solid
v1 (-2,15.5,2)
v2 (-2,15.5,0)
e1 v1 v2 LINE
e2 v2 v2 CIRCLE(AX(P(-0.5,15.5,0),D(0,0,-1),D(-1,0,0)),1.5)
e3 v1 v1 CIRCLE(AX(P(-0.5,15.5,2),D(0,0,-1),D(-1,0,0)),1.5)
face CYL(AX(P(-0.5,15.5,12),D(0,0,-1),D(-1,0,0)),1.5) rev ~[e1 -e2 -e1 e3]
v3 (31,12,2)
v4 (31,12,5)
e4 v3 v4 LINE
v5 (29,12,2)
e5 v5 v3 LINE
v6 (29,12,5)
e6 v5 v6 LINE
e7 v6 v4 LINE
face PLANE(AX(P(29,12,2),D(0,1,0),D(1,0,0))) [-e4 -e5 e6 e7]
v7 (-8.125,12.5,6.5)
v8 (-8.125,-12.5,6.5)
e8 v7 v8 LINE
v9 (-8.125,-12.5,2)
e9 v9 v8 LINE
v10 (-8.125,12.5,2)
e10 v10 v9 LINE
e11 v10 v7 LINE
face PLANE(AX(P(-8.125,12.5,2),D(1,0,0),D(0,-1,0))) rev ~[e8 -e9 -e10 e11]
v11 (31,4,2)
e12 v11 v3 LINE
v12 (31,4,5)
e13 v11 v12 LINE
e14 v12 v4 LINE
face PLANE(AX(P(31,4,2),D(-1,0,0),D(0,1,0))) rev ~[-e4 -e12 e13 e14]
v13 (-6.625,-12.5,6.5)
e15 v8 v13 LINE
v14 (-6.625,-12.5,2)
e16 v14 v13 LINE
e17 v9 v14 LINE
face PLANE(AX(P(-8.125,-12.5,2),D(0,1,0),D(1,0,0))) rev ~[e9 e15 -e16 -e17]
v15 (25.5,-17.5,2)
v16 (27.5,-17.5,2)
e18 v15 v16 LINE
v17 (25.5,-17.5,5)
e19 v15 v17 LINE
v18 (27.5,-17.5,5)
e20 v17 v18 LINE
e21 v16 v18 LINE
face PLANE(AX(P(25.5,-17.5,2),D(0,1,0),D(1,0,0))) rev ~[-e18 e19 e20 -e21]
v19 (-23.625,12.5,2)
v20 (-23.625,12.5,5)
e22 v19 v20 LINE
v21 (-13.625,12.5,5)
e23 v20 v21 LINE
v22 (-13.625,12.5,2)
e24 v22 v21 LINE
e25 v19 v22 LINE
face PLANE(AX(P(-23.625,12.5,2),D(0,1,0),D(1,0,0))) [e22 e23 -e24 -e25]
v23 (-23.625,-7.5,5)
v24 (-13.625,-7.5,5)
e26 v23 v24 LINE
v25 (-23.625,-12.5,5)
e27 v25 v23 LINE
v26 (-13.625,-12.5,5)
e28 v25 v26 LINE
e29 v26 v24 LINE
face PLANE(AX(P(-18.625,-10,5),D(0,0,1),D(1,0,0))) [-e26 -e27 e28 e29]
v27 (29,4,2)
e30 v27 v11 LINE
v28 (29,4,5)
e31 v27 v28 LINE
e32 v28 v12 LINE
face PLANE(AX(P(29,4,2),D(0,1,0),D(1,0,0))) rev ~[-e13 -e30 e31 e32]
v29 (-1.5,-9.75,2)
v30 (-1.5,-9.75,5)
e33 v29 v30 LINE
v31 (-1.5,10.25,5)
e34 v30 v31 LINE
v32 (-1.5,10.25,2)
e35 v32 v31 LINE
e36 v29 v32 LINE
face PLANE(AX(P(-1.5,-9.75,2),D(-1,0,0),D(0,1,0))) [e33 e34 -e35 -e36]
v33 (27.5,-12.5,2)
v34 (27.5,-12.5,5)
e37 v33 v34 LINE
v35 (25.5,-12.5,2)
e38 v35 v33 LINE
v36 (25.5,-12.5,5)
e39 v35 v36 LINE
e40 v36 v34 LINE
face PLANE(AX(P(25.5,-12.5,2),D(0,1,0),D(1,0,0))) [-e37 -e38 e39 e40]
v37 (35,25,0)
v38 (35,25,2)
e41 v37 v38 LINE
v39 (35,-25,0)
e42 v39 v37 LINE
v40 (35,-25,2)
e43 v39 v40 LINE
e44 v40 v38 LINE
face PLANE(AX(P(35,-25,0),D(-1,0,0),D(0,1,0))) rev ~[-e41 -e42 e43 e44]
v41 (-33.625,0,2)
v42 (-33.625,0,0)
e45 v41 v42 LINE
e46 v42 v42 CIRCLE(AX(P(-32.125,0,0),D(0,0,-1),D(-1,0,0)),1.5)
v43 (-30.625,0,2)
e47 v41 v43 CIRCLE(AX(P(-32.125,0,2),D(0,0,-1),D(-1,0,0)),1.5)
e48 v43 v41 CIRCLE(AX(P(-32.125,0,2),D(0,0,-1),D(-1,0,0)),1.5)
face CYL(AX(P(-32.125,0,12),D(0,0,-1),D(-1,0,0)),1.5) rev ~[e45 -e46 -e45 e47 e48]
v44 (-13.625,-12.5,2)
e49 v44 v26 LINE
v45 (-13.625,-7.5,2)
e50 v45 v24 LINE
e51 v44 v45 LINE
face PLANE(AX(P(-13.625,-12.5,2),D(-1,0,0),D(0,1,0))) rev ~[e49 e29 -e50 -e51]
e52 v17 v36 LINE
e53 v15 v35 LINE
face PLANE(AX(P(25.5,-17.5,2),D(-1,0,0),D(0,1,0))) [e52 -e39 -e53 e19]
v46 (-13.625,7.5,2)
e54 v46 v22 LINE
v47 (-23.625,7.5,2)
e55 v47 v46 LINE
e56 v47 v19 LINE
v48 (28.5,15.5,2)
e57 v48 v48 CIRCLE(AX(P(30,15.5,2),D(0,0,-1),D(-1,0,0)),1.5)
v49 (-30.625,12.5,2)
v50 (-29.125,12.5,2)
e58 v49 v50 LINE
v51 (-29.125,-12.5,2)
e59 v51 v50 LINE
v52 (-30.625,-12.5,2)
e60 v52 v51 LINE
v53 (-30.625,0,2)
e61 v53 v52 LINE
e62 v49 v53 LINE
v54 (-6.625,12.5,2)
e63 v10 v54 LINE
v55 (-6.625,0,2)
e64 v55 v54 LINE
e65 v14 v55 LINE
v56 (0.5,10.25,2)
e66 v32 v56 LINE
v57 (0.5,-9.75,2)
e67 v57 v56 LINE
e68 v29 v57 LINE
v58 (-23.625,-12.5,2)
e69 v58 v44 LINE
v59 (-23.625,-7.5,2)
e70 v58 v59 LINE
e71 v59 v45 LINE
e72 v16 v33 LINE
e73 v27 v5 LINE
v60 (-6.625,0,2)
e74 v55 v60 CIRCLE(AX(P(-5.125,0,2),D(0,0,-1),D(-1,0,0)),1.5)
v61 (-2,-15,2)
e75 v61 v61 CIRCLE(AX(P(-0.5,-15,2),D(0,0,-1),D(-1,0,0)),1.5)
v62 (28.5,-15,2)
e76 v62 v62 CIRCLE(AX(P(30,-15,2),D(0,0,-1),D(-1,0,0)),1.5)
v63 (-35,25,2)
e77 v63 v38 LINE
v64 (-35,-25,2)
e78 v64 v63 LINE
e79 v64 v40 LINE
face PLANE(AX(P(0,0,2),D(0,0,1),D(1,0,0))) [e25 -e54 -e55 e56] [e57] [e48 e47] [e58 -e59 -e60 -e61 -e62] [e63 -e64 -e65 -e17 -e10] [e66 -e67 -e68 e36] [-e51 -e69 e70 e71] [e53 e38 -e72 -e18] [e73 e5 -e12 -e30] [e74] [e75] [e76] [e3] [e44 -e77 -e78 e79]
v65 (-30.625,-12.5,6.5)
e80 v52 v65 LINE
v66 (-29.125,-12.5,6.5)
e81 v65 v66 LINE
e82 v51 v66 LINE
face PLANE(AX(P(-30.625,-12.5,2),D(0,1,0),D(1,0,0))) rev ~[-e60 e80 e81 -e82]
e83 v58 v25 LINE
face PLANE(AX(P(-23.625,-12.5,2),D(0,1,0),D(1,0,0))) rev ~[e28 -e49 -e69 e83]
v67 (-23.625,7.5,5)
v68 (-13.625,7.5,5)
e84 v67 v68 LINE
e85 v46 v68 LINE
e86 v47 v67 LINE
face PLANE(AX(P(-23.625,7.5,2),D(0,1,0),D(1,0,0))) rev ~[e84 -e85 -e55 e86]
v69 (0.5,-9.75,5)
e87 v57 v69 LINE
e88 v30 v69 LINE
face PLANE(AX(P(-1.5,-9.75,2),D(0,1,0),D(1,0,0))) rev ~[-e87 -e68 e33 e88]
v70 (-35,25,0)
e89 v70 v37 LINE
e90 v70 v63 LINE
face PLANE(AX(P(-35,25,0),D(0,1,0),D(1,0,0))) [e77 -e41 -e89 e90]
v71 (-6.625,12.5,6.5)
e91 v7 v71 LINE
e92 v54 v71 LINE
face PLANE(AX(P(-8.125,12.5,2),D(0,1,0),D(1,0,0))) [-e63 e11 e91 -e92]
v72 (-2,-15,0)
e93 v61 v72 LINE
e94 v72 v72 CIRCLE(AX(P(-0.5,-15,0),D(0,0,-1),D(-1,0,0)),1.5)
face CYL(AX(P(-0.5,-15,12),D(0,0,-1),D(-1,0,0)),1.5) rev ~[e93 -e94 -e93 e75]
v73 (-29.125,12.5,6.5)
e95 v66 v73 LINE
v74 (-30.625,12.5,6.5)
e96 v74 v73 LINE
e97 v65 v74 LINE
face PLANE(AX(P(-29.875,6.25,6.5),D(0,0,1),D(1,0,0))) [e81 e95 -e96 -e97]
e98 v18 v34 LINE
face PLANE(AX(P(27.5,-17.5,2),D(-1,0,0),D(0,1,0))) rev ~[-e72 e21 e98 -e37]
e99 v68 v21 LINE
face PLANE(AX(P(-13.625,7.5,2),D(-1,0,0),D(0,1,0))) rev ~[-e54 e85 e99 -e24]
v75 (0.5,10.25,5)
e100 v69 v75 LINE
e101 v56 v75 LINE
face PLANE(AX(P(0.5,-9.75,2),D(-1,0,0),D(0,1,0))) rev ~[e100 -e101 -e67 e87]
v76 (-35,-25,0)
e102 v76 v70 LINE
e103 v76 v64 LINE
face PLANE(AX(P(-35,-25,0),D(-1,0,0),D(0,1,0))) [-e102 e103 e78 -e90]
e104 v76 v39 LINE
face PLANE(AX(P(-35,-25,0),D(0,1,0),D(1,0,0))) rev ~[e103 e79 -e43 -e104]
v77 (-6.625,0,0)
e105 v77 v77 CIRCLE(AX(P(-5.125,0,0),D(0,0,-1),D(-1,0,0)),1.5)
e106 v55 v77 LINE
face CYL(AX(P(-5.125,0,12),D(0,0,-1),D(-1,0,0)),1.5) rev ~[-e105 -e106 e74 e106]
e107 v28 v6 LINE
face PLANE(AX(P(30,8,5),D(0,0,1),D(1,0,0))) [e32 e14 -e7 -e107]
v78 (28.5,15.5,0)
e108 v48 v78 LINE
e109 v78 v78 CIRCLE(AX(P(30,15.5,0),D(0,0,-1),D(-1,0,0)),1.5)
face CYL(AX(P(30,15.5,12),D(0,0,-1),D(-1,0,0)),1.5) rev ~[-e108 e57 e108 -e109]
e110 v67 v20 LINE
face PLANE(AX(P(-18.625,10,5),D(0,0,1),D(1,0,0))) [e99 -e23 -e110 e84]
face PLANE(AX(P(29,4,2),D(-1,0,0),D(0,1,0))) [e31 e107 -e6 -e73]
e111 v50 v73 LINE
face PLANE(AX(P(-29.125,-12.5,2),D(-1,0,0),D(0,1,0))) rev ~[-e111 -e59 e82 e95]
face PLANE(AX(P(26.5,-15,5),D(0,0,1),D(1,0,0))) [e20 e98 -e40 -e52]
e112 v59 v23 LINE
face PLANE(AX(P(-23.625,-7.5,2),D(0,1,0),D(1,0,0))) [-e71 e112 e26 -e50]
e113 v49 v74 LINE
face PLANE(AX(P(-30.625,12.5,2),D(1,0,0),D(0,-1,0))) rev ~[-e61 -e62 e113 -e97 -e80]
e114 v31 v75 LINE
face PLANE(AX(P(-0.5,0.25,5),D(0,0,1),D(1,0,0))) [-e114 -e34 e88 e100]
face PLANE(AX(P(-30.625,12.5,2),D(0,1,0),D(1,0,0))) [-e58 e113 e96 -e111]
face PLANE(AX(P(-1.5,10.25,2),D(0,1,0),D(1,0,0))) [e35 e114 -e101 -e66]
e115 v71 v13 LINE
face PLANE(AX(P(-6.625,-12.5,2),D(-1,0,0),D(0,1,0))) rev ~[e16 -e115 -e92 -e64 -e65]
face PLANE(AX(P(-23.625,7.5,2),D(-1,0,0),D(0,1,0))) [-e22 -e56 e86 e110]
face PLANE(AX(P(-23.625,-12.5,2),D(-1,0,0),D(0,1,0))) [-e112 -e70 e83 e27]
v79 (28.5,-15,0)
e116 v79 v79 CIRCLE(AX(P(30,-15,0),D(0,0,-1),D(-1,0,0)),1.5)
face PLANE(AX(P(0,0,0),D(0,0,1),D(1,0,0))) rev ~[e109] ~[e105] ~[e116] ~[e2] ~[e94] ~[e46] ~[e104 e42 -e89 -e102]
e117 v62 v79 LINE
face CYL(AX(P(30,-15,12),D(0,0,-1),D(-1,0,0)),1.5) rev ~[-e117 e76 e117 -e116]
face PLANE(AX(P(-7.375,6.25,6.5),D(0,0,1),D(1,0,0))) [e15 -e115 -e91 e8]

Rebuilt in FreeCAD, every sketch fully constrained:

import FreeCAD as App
import Part
import Sketcher
from FreeCAD import Vector
Q = App.Units.Quantity


def add_polygon(sketch, points):
    """Adds a closed chain of lines whose ends are joined by coincident constraints."""
    first, n = sketch.GeometryCount, len(points)
    for a, b in zip(points, points[1:] + points[:1]):
        sketch.addGeometry(Part.LineSegment(App.Vector(*a, 0), App.Vector(*b, 0)), False)
    for i in range(n):
        sketch.addConstraint(Sketcher.Constraint("Coincident", first + i, 2, first + (i + 1) % n, 1))

doc = App.newDocument("Part")
body = doc.addObject("PartDesign::Body", "Body")

# Sketch on XY plane
sketch1 = body.newObject("Sketcher::SketchObject", "Sketch")
sketch1.AttachmentSupport = (doc.getObject("XY_Plane"), [""])
sketch1.MapMode = "FlatFace"
add_polygon(sketch1, [(-35, 25), (-35, -25), (35, -25), (35, 25)])  # lines 0-3
sketch1.addConstraint(Sketcher.Constraint("Vertical", 0))
sketch1.addConstraint(Sketcher.Constraint("Horizontal", 1))
sketch1.addConstraint(Sketcher.Constraint("Vertical", 2))
sketch1.addConstraint(Sketcher.Constraint("Horizontal", 3))
sketch1.addConstraint(Sketcher.Constraint("Symmetric", 0, 2, 2, 2, -1, 1))
sketch1.addConstraint(Sketcher.Constraint("DistanceX", 1, 1, 1, 2, Q("70 mm")))
sketch1.addConstraint(Sketcher.Constraint("DistanceY", 0, 2, 0, 1, Q("50 mm")))
pad1 = body.newObject("PartDesign::Pad", "Pad")
pad1.Profile = sketch1
pad1.Length = 2

# Sketch on XY plane
sketch2 = body.newObject("Sketcher::SketchObject", "Sketch001")
sketch2.AttachmentSupport = (doc.getObject("XY_Plane"), [""])
sketch2.MapMode = "FlatFace"
sketch2.AttachmentOffset = App.Placement(Vector(0, 0, 2), App.Rotation())
add_polygon(sketch2, [(-30.6, 12.5), (-30.6, -12.5), (-29.1, -12.5), (-29.1, 12.5)])  # lines 0-3
add_polygon(sketch2, [(-8.1, 12.5), (-8.1, -12.5), (-6.6, -12.5), (-6.6, 12.5)])  # lines 4-7
sketch2.addConstraint(Sketcher.Constraint("Vertical", 0))
sketch2.addConstraint(Sketcher.Constraint("Horizontal", 1))
sketch2.addConstraint(Sketcher.Constraint("Vertical", 2))
sketch2.addConstraint(Sketcher.Constraint("Horizontal", 3))
sketch2.addConstraint(Sketcher.Constraint("Vertical", 4))
sketch2.addConstraint(Sketcher.Constraint("Horizontal", 5))
sketch2.addConstraint(Sketcher.Constraint("Vertical", 6))
sketch2.addConstraint(Sketcher.Constraint("Horizontal", 7))
sketch2.addConstraint(Sketcher.Constraint("Horizontal", 1, 2, 4, 2))
sketch2.addConstraint(Sketcher.Constraint("Horizontal", 3, 2, 6, 2))
sketch2.addConstraint(Sketcher.Constraint("Equal", 3, 5))
sketch2.addConstraint(Sketcher.Constraint("DistanceY", 0, 2, 0, 1, Q("25 mm")))
sketch2.addConstraint(Sketcher.Constraint("DistanceX", 1, 1, 1, 2, Q("1.5 mm")))
sketch2.addConstraint(Sketcher.Constraint("DistanceX", 1, 2, 4, 2, Q("21 mm")))
sketch2.addConstraint(Sketcher.Constraint("DistanceY", 0, 2, -1, 1, Q("12.5 mm")))
sketch2.addConstraint(Sketcher.Constraint("DistanceX", 0, 2, -1, 1, Q("30.625 mm")))
pad2 = body.newObject("PartDesign::Pad", "Pad001")
pad2.Profile = sketch2
pad2.Length = 4.5

# Sketch on XY plane
sketch3 = body.newObject("Sketcher::SketchObject", "Sketch002")
sketch3.AttachmentSupport = (doc.getObject("XY_Plane"), [""])
sketch3.MapMode = "FlatFace"
sketch3.AttachmentOffset = App.Placement(Vector(0, 0, 2), App.Rotation())
sketch3.addGeometry(Part.Circle(Vector(-0.5, 15.5, 0), Vector(0, 0, 1), 1.5), False)
sketch3.addGeometry(Part.Circle(Vector(30, 15.5, 0), Vector(0, 0, 1), 1.5), False)
sketch3.addGeometry(Part.Circle(Vector(30, -15, 0), Vector(0, 0, 1), 1.5), False)
sketch3.addGeometry(Part.Circle(Vector(-0.5, -15, 0), Vector(0, 0, 1), 1.5), False)
sketch3.addConstraint(Sketcher.Constraint("Equal", 0, 1))
sketch3.addConstraint(Sketcher.Constraint("Equal", 1, 2))
sketch3.addConstraint(Sketcher.Constraint("Equal", 2, 3))
sketch3.addConstraint(Sketcher.Constraint("Horizontal", 0, 3, 1, 3))
sketch3.addConstraint(Sketcher.Constraint("Horizontal", 2, 3, 3, 3))
sketch3.addConstraint(Sketcher.Constraint("Vertical", 1, 3, 2, 3))
sketch3.addConstraint(Sketcher.Constraint("Vertical", 0, 3, 3, 3))
sketch3.addConstraint(Sketcher.Constraint("Diameter", 0, Q("3 mm")))
sketch3.addConstraint(Sketcher.Constraint("DistanceX", -1, 1, 1, 3, Q("30 mm")))
sketch3.addConstraint(Sketcher.Constraint("DistanceY", 2, 3, -1, 1, Q("15 mm")))
sketch3.addConstraint(Sketcher.Constraint("DistanceX", 0, 3, -1, 1, Q("0.5 mm")))
sketch3.addConstraint(Sketcher.Constraint("DistanceY", -1, 1, 0, 3, Q("15.5 mm")))
doc.recompute()
hole = body.newObject("PartDesign::Hole", "Hole")
hole.Profile = sketch3
hole.ThreadType = "None"
hole.Diameter = 3
hole.DepthType = "Dimension"
hole.Depth = 10
hole.DrillPoint = "Angled"
hole.DrillPointAngle = 118

# Sketch on XY plane
sketch4 = body.newObject("Sketcher::SketchObject", "Sketch003")
sketch4.AttachmentSupport = (doc.getObject("XY_Plane"), [""])
sketch4.MapMode = "FlatFace"
sketch4.AttachmentOffset = App.Placement(Vector(0, 0, 2), App.Rotation())
sketch4.addGeometry(Part.Circle(Vector(-5.1, 0, 0), Vector(0, 0, 1), 1.5), False)
sketch4.addGeometry(Part.Circle(Vector(-32.1, 0, 0), Vector(0, 0, 1), 1.5), False)
sketch4.addConstraint(Sketcher.Constraint("Equal", 0, 1))
sketch4.addConstraint(Sketcher.Constraint("PointOnObject", 0, 3, -1))
sketch4.addConstraint(Sketcher.Constraint("PointOnObject", 1, 3, -1))
sketch4.addConstraint(Sketcher.Constraint("Diameter", 0, Q("3 mm")))
sketch4.addConstraint(Sketcher.Constraint("DistanceX", 1, 3, 0, 3, Q("27 mm")))
sketch4.addConstraint(Sketcher.Constraint("DistanceX", 0, 3, -1, 1, Q("5.125 mm")))
doc.recompute()
hole2 = body.newObject("PartDesign::Hole", "Hole001")
hole2.Profile = sketch4
hole2.ThreadType = "None"
hole2.Diameter = 3
hole2.DepthType = "Dimension"
hole2.Depth = 10
hole2.DrillPoint = "Angled"
hole2.DrillPointAngle = 118

# Sketch on XY plane
sketch5 = body.newObject("Sketcher::SketchObject", "Sketch004")
sketch5.AttachmentSupport = (doc.getObject("XY_Plane"), [""])
sketch5.MapMode = "FlatFace"
sketch5.AttachmentOffset = App.Placement(Vector(0, 0, 2), App.Rotation())
add_polygon(sketch5, [(-23.6, 12.5), (-23.6, 7.5), (-13.6, 7.5), (-13.6, 12.5)])  # lines 0-3
add_polygon(sketch5, [(-23.6, -7.5), (-23.6, -12.5), (-13.6, -12.5), (-13.6, -7.5)])  # lines 4-7
add_polygon(sketch5, [(25.5, -12.5), (25.5, -17.5), (27.5, -17.5), (27.5, -12.5)])  # lines 8-11
add_polygon(sketch5, [(29, 12), (29, 4), (31, 4), (31, 12)])  # lines 12-15
add_polygon(sketch5, [(-1.5, 10.2), (-1.5, -9.8), (0.5, -9.8), (0.5, 10.2)])  # lines 16-19
sketch5.addConstraint(Sketcher.Constraint("Vertical", 0))
sketch5.addConstraint(Sketcher.Constraint("Horizontal", 1))
sketch5.addConstraint(Sketcher.Constraint("Vertical", 2))
sketch5.addConstraint(Sketcher.Constraint("Horizontal", 3))
sketch5.addConstraint(Sketcher.Constraint("Vertical", 4))
sketch5.addConstraint(Sketcher.Constraint("Horizontal", 5))
sketch5.addConstraint(Sketcher.Constraint("Vertical", 6))
sketch5.addConstraint(Sketcher.Constraint("Horizontal", 7))
sketch5.addConstraint(Sketcher.Constraint("Vertical", 8))
sketch5.addConstraint(Sketcher.Constraint("Horizontal", 9))
sketch5.addConstraint(Sketcher.Constraint("Vertical", 10))
sketch5.addConstraint(Sketcher.Constraint("Horizontal", 11))
sketch5.addConstraint(Sketcher.Constraint("Vertical", 12))
sketch5.addConstraint(Sketcher.Constraint("Horizontal", 13))
sketch5.addConstraint(Sketcher.Constraint("Vertical", 14))
sketch5.addConstraint(Sketcher.Constraint("Horizontal", 15))
sketch5.addConstraint(Sketcher.Constraint("Vertical", 16))
sketch5.addConstraint(Sketcher.Constraint("Horizontal", 17))
sketch5.addConstraint(Sketcher.Constraint("Vertical", 18))
sketch5.addConstraint(Sketcher.Constraint("Horizontal", 19))
sketch5.addConstraint(Sketcher.Constraint("Symmetric", 3, 2, 4, 2, -1))
sketch5.addConstraint(Sketcher.Constraint("Symmetric", 1, 2, 6, 2, -1))
sketch5.addConstraint(Sketcher.Constraint("Horizontal", 5, 2, 10, 2))
sketch5.addConstraint(Sketcher.Constraint("Equal", 11, 13))
sketch5.addConstraint(Sketcher.Constraint("Equal", 15, 17))
sketch5.addConstraint(Sketcher.Constraint("Equal", 6, 8))
sketch5.addConstraint(Sketcher.Constraint("DistanceX", 1, 1, 1, 2, Q("10 mm")))
sketch5.addConstraint(Sketcher.Constraint("DistanceX", 9, 1, 9, 2, Q("2 mm")))
sketch5.addConstraint(Sketcher.Constraint("DistanceY", 0, 2, 0, 1, Q("5 mm")))
sketch5.addConstraint(Sketcher.Constraint("DistanceY", 12, 2, 12, 1, Q("8 mm")))
sketch5.addConstraint(Sketcher.Constraint("DistanceY", 16, 2, 16, 1, Q("20 mm")))
sketch5.addConstraint(Sketcher.Constraint("DistanceX", -1, 1, 12, 2, Q("29 mm")))
sketch5.addConstraint(Sketcher.Constraint("DistanceY", -1, 1, 12, 2, Q("4 mm")))
sketch5.addConstraint(Sketcher.Constraint("DistanceY", 4, 2, 0, 2, Q("20 mm")))
sketch5.addConstraint(Sketcher.Constraint("DistanceX", -1, 1, 8, 2, Q("25.5 mm")))
sketch5.addConstraint(Sketcher.Constraint("DistanceX", 16, 2, -1, 1, Q("1.5 mm")))
sketch5.addConstraint(Sketcher.Constraint("DistanceY", 16, 2, -1, 1, Q("9.75 mm")))
sketch5.addConstraint(Sketcher.Constraint("DistanceX", 0, 2, -1, 1, Q("23.625 mm")))
pad3 = body.newObject("PartDesign::Pad", "Pad002")
pad3.Profile = sketch5
pad3.Length = 3

doc.recompute()
